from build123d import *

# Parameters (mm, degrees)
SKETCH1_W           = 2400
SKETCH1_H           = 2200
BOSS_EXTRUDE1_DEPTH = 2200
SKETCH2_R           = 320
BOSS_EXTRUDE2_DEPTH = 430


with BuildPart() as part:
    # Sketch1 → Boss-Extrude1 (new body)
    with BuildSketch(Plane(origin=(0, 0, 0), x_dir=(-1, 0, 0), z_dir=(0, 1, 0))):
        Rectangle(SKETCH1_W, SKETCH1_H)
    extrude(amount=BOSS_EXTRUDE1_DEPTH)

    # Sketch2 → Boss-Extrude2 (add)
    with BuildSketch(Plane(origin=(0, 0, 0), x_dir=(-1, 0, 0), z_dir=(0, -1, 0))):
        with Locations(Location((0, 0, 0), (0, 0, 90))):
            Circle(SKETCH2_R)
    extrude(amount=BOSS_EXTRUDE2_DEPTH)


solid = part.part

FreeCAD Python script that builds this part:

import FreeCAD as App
import Part
import Sketcher
from FreeCAD import Vector
Q = App.Units.Quantity

doc = App.newDocument("Part")
body = doc.addObject("PartDesign::Body", "Body")

sketch1 = body.newObject("Sketcher::SketchObject", "Sketch")
sketch1.AttachmentSupport = (doc.getObject("XZ_Plane"), [""])
sketch1.MapMode = "FlatFace"
sketch1.addGeometry([
    Part.LineSegment(Vector(1200, 1100, 0), Vector(1200, -1100, 0)),
    Part.LineSegment(Vector(1200, -1100, 0), Vector(-1200, -1100, 0)),
    Part.LineSegment(Vector(-1200, -1100, 0), Vector(-1200, 1100, 0)),
    Part.LineSegment(Vector(-1200, 1100, 0), Vector(1200, 1100, 0)),
], False)
sketch1.addConstraint([
    Sketcher.Constraint("Coincident", 0, 2, 1, 1),
    Sketcher.Constraint("Coincident", 1, 2, 2, 1),
    Sketcher.Constraint("Coincident", 2, 2, 3, 1),
    Sketcher.Constraint("Coincident", 3, 2, 0, 1),
    Sketcher.Constraint("Vertical", 0),
    Sketcher.Constraint("Horizontal", 1),
    Sketcher.Constraint("Vertical", 2),
    Sketcher.Constraint("Horizontal", 3),
    Sketcher.Constraint("Symmetric", 0, 2, 2, 2, -1, 1),
    Sketcher.Constraint("DistanceX", 1, 2, 1, 1, Q("2400 mm")),
    Sketcher.Constraint("DistanceY", 0, 2, 0, 1, Q("2200 mm")),
])
pad1 = body.newObject("PartDesign::Pad", "Pad")
pad1.Profile = sketch1
pad1.Length = 2200
pad1.Reversed = True

sketch2 = body.newObject("Sketcher::SketchObject", "Sketch001")
sketch2.AttachmentSupport = (doc.getObject("XZ_Plane"), [""])
sketch2.MapMode = "FlatFace"
sketch2.addGeometry(Part.Circle(Vector(0, 0, 0), Vector(0, 0, 1), 320), False)
sketch2.addConstraint([
    Sketcher.Constraint("Coincident", 0, 3, -1, 1),
    Sketcher.Constraint("Diameter", 0, Q("640 mm")),
])
pad2 = body.newObject("PartDesign::Pad", "Pad001")
pad2.Profile = sketch2
pad2.Length = 430

doc.recompute()
